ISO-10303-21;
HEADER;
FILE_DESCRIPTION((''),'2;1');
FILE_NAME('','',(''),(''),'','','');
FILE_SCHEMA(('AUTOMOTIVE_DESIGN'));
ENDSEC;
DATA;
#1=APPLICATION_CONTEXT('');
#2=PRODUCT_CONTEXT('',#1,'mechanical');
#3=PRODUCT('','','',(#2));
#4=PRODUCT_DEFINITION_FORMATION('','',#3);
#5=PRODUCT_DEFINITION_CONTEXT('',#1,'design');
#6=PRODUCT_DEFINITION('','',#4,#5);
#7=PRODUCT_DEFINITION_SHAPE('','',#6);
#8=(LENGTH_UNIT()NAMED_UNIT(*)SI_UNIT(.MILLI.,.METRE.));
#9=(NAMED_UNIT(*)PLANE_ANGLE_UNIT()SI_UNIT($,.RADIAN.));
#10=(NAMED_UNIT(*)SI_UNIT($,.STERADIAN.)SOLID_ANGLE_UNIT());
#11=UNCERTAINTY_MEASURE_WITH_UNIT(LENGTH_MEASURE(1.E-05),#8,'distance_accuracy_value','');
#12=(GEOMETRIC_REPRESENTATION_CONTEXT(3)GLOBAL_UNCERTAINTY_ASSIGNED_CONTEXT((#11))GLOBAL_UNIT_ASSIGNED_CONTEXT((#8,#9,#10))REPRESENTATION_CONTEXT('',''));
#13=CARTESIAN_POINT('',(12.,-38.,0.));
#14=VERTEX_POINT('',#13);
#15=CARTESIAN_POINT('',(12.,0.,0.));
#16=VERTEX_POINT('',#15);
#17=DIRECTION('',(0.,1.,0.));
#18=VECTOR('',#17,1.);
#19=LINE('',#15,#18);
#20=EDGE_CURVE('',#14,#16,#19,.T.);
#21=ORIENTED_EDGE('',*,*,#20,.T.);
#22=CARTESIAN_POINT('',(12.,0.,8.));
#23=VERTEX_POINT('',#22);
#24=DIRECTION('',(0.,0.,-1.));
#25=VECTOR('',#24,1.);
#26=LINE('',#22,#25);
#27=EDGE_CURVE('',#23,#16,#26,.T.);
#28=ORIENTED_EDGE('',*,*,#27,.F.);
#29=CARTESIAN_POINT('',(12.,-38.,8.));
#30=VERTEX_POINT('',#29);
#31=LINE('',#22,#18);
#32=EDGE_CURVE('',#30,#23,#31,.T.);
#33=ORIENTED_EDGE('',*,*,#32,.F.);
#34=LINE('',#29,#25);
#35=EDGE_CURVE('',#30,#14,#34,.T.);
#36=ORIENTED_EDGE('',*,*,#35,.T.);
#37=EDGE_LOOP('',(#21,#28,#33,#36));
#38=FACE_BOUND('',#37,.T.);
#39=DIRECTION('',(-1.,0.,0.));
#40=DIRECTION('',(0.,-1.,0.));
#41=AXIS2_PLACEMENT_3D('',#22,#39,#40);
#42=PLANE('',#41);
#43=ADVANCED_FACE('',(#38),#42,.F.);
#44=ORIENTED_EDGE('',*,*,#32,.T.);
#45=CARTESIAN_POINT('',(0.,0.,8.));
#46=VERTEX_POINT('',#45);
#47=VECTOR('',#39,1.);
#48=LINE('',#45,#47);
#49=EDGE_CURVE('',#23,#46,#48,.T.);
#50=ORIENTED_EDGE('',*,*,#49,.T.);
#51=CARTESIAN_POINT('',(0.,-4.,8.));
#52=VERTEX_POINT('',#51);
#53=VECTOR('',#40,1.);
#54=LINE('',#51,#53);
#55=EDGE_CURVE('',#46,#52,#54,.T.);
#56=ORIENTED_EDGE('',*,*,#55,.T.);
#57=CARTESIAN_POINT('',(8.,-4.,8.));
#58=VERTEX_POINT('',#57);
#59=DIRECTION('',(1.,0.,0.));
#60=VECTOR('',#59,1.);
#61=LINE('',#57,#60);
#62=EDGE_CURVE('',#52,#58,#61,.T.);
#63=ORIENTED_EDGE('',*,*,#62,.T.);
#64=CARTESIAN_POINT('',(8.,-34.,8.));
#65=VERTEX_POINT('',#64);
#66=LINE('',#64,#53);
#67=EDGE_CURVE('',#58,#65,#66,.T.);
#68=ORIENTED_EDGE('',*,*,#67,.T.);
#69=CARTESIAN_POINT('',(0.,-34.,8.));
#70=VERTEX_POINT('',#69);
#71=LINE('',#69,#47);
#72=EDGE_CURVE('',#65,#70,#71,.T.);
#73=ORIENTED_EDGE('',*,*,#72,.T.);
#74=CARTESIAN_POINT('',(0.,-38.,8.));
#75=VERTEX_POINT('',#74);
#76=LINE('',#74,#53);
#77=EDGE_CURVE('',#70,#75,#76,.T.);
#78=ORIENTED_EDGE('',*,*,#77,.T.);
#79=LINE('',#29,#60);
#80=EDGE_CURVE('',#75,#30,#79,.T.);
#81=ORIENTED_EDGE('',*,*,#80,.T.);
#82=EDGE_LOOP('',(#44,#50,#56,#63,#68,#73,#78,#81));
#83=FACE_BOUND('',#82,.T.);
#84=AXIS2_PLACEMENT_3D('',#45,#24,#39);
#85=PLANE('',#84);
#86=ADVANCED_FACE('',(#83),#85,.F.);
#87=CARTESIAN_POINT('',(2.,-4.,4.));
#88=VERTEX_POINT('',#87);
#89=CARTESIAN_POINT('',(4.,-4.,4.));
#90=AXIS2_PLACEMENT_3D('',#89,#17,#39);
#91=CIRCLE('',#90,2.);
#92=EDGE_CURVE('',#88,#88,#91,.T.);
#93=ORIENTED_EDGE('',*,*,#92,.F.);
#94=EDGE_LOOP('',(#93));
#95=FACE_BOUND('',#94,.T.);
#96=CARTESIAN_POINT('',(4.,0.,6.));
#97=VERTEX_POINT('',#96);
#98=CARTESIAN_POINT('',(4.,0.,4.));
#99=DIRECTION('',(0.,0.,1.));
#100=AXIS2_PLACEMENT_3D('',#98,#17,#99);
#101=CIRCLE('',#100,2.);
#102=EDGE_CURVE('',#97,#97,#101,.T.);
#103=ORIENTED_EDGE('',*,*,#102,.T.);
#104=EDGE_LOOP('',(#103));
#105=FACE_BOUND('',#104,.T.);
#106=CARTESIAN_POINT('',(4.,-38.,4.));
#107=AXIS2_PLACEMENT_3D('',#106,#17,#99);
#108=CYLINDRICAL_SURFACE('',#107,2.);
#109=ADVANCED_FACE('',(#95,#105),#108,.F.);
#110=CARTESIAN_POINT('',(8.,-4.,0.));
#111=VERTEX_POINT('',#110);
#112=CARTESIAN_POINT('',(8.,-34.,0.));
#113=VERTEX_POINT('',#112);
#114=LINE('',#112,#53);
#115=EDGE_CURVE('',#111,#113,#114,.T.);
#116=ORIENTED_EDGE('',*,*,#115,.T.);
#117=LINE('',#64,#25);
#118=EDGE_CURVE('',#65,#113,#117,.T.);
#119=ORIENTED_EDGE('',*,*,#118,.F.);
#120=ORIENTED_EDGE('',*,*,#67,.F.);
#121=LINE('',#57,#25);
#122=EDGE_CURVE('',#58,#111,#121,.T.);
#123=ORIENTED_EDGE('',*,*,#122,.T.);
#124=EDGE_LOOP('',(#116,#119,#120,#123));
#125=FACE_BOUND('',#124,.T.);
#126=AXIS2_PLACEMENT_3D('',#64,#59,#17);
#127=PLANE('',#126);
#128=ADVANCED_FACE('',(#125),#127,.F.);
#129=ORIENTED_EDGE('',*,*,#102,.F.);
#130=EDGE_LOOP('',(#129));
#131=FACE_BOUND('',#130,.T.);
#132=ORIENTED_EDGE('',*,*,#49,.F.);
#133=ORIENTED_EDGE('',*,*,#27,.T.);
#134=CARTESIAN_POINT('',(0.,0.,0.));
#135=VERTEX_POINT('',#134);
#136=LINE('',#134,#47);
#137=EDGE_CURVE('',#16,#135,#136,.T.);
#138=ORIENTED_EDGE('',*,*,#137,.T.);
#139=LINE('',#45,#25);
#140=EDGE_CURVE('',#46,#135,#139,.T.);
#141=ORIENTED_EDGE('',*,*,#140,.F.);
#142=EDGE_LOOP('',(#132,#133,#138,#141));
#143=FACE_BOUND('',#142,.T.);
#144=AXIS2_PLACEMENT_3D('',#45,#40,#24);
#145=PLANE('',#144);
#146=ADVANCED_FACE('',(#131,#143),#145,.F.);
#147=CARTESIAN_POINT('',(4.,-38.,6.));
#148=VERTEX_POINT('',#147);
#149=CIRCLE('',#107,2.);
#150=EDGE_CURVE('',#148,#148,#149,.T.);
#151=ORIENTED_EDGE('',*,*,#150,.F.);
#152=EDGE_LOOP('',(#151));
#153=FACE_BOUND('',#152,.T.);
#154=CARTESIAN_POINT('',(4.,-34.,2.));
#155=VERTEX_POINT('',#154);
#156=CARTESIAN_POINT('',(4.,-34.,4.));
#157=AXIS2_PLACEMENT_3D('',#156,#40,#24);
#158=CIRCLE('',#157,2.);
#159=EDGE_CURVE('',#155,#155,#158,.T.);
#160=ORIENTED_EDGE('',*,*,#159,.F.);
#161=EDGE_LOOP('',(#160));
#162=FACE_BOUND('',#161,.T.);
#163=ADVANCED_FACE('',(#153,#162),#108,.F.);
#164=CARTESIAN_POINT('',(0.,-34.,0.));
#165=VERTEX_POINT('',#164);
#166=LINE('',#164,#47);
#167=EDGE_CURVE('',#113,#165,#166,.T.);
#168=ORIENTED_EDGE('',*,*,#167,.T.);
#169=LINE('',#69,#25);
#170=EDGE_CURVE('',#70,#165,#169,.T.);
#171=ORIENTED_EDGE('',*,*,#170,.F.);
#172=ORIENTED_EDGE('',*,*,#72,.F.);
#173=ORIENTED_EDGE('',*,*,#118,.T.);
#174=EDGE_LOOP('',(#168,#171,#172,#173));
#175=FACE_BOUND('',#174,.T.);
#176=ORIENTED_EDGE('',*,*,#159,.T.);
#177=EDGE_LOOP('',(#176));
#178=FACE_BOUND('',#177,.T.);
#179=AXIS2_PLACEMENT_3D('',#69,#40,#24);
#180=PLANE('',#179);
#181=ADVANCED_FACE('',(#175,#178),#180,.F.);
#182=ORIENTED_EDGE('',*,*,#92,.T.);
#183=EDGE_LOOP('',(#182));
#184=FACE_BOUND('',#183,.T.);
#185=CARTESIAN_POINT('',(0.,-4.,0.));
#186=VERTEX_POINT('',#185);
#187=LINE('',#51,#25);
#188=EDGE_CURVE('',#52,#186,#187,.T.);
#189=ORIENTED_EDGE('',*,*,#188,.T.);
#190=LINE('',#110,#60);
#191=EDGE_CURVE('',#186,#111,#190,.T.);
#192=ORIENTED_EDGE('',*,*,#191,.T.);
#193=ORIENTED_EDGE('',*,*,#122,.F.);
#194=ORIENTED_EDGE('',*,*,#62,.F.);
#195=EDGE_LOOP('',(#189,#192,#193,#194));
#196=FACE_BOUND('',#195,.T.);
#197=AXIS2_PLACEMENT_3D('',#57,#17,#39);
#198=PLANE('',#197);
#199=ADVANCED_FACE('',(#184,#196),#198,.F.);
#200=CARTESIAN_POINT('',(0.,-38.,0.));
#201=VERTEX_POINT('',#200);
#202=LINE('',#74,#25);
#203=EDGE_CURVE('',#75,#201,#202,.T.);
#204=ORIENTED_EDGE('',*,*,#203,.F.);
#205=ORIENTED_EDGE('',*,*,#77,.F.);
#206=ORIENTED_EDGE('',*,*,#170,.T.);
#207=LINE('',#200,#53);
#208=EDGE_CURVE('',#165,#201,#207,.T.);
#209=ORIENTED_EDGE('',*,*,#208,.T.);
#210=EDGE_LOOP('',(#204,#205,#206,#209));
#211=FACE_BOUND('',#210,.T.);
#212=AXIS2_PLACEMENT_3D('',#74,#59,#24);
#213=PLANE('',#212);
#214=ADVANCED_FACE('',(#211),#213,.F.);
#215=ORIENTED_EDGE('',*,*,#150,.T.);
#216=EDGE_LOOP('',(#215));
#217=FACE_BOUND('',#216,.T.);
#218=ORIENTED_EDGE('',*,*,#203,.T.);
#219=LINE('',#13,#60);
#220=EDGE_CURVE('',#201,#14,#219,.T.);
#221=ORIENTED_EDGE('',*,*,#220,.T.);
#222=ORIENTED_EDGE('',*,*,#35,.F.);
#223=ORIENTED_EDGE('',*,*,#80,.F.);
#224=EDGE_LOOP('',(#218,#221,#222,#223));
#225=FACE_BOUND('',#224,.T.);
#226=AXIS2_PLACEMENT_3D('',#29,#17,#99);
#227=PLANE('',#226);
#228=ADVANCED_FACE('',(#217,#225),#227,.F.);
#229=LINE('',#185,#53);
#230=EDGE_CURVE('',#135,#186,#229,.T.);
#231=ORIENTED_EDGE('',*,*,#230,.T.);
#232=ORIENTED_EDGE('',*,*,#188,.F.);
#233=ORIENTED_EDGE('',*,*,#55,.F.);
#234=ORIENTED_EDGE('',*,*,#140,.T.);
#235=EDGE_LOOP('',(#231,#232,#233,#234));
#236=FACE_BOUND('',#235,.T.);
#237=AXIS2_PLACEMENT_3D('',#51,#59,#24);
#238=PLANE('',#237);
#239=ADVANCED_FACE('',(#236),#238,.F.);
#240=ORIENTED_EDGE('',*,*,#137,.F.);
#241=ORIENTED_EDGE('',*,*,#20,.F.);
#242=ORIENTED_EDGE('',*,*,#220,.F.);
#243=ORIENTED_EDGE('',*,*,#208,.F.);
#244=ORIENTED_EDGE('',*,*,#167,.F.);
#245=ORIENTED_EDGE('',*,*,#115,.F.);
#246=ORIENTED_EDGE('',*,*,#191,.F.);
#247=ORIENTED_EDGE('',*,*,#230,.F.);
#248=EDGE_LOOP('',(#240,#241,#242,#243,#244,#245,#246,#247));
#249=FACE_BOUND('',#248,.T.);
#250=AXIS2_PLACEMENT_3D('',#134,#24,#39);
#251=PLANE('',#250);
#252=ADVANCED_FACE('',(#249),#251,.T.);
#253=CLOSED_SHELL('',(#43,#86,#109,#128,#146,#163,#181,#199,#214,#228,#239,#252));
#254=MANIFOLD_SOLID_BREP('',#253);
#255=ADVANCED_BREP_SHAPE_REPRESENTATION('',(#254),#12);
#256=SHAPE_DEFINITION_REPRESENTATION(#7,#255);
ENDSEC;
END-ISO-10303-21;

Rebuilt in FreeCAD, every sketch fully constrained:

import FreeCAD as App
import Part
import Sketcher

V = App.Vector
Q = App.Units.Quantity

doc = App.newDocument("Part")
body = doc.addObject("PartDesign::Body", "Body")

sketch1 = body.newObject("Sketcher::SketchObject", "Sketch")
sketch1.AttachmentSupport = (doc.getObject("XY_Plane"), [""])
sketch1.MapMode = "FlatFace"
sketch1.addGeometry([
    Part.LineSegment(V(12, 0, 0), V(0, 0, 0)),
    Part.LineSegment(V(0, 0, 0), V(0, -4, 0)),
    Part.LineSegment(V(0, -4, 0), V(8, -4, 0)),
    Part.LineSegment(V(8, -4, 0), V(8, -34, 0)),
    Part.LineSegment(V(8, -34, 0), V(0, -34, 0)),
    Part.LineSegment(V(0, -34, 0), V(0, -38, 0)),
    Part.LineSegment(V(0, -38, 0), V(12, -38, 0)),
    Part.LineSegment(V(12, -38, 0), V(12, 0, 0)),
], False)
sketch1.addConstraint([
    Sketcher.Constraint("Coincident", 0, 2, 1, 1),
    Sketcher.Constraint("Coincident", 1, 2, 2, 1),
    Sketcher.Constraint("Coincident", 2, 2, 3, 1),
    Sketcher.Constraint("Coincident", 3, 2, 4, 1),
    Sketcher.Constraint("Coincident", 4, 2, 5, 1),
    Sketcher.Constraint("Coincident", 5, 2, 6, 1),
    Sketcher.Constraint("Coincident", 6, 2, 7, 1),
    Sketcher.Constraint("Coincident", 7, 2, 0, 1),
    Sketcher.Constraint("Horizontal", 0),
    Sketcher.Constraint("Vertical", 1),
    Sketcher.Constraint("Horizontal", 2),
    Sketcher.Constraint("Vertical", 3),
    Sketcher.Constraint("Horizontal", 4),
    Sketcher.Constraint("Vertical", 5),
    Sketcher.Constraint("Horizontal", 6),
    Sketcher.Constraint("Vertical", 7),
    Sketcher.Constraint("Coincident", 0, 2, -1, 1),
    Sketcher.Constraint("PointOnObject", 4, 2, -2),
    Sketcher.Constraint("Equal", 1, 5),
    Sketcher.Constraint("DistanceX", 0, 2, 0, 1, Q("12 mm")),
    Sketcher.Constraint("DistanceX", 2, 1, 2, 2, Q("8 mm")),
    Sketcher.Constraint("DistanceY", 1, 2, 1, 1, Q("4 mm")),
    Sketcher.Constraint("DistanceY", 3, 2, 3, 1, Q("30 mm")),
])
pad1 = body.newObject("PartDesign::Pad", "Pad")
pad1.Profile = sketch1
pad1.Length = 8

sketch2 = body.newObject("Sketcher::SketchObject", "Sketch001")
sketch2.AttachmentSupport = (doc.getObject("XZ_Plane"), [""])
sketch2.MapMode = "FlatFace"
sketch2.addGeometry(Part.Circle(V(4, 4, 0), V(0, 0, 1), 2), False)
sketch2.addConstraint([
    Sketcher.Constraint("Diameter", 0, Q("4 mm")),
    Sketcher.Constraint("DistanceX", -1, 1, 0, 3, Q("4 mm")),
    Sketcher.Constraint("DistanceY", -1, 1, 0, 3, Q("4 mm")),
])
pocket1 = body.newObject("PartDesign::Pocket", "Pocket")
pocket1.Profile = sketch2
pocket1.Length = 38
pocket1.Reversed = True

doc.recompute()
